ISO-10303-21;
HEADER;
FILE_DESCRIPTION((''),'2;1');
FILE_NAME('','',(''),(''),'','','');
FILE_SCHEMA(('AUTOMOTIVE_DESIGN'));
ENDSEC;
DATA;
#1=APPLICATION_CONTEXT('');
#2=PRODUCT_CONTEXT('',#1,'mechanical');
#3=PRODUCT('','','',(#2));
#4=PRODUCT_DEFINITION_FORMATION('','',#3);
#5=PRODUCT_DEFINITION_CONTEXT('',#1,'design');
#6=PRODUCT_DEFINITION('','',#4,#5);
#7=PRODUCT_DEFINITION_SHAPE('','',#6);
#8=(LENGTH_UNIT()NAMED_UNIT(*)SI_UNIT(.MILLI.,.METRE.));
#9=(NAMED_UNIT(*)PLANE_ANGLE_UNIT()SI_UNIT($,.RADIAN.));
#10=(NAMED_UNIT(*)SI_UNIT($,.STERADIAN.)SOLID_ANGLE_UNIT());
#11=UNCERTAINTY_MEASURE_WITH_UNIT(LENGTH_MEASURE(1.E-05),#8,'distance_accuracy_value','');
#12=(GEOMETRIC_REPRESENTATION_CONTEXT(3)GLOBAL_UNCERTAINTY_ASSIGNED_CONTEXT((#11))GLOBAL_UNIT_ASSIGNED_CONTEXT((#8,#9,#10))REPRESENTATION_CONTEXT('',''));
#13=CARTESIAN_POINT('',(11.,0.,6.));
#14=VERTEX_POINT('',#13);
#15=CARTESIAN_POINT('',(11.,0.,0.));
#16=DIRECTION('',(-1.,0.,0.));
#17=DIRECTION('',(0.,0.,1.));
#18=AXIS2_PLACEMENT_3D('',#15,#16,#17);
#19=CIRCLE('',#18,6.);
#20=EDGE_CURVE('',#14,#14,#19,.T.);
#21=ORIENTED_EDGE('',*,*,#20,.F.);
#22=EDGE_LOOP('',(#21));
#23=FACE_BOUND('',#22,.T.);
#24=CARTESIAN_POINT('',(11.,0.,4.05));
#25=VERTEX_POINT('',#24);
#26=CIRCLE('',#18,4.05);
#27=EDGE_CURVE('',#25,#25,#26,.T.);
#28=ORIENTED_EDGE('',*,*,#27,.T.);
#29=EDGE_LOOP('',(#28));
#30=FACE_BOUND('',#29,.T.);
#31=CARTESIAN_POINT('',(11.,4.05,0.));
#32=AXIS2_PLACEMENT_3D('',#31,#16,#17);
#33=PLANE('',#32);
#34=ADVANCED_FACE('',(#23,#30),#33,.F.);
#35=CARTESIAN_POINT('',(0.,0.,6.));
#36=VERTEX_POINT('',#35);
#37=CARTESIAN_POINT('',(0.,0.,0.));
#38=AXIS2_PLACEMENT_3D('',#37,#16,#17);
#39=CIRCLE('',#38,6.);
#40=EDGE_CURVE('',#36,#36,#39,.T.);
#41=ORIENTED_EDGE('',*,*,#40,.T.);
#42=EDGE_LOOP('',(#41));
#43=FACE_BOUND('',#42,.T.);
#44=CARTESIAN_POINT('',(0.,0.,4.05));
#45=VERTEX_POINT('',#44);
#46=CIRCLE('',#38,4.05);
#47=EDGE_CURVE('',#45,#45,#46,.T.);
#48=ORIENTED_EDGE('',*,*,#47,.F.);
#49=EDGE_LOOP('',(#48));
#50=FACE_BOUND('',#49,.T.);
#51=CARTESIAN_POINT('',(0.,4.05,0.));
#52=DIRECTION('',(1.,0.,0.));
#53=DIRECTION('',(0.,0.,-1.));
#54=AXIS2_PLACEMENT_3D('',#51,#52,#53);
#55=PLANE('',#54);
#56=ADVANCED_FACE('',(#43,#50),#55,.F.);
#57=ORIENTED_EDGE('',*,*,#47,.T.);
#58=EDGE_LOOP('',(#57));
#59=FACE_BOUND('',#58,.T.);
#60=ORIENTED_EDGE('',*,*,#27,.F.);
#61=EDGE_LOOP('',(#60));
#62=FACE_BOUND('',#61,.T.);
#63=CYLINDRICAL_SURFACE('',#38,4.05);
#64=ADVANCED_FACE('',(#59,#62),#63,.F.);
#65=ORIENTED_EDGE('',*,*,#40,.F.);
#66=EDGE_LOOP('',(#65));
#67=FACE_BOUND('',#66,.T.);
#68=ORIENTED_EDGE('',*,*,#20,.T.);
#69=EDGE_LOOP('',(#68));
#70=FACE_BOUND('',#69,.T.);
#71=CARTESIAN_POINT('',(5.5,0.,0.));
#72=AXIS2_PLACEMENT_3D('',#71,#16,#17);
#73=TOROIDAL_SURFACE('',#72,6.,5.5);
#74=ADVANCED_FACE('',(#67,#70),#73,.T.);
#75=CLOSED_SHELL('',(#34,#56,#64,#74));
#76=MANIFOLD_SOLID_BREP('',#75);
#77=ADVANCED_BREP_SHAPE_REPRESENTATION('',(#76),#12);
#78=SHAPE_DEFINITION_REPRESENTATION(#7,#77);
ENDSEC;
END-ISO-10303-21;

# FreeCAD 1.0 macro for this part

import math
import FreeCAD as App
import Part
import Sketcher
Q = App.Units.Quantity

doc = App.newDocument("Part")
body = doc.addObject("PartDesign::Body", "Body")

# Sketch on XY plane
sketch1 = doc.addObject("Sketcher::SketchObject", "Sketch")
body.addObject(sketch1)
sketch1.AttachmentSupport = (doc.XY_Plane, [""])
sketch1.MapMode = "FlatFace"
sketch1.addGeometry([
    Part.LineSegment(App.Vector(0, 4, 0), App.Vector(11, 4, 0)),
    Part.LineSegment(App.Vector(11, 4, 0), App.Vector(11, 6, 0)),
    Part.ArcOfCircle(Part.Circle(App.Vector(5.5, 6, 0), App.Vector(0, 0, 1), 5.5), math.radians(0), math.radians(180)),
    Part.LineSegment(App.Vector(0, 6, 0), App.Vector(0, 4, 0)),
], False)
sketch1.addConstraint([
    Sketcher.Constraint("Coincident", 0, 2, 1, 1),
    Sketcher.Constraint("Tangent", 1, 2, 2, 1),
    Sketcher.Constraint("Tangent", 2, 2, 3, 1),
    Sketcher.Constraint("Coincident", 3, 2, 0, 1),
    Sketcher.Constraint("Horizontal", 0),
    Sketcher.Constraint("Vertical", 1),
    Sketcher.Constraint("Vertical", 3),
    Sketcher.Constraint("PointOnObject", 2, 2, -2),
    Sketcher.Constraint("Radius", 2, Q("5.5 mm")),
    Sketcher.Constraint("DistanceY", -1, 1, 2, 3, Q("6 mm")),
    Sketcher.Constraint("DistanceY", 1, 1, 1, 2, Q("1.95 mm")),
])
revolution = doc.addObject("PartDesign::Revolution", "Revolution")
body.addObject(revolution)
revolution.Profile = sketch1
revolution.ReferenceAxis = (sketch1, ["H_Axis"])
revolution.Angle = 360

doc.recompute()
